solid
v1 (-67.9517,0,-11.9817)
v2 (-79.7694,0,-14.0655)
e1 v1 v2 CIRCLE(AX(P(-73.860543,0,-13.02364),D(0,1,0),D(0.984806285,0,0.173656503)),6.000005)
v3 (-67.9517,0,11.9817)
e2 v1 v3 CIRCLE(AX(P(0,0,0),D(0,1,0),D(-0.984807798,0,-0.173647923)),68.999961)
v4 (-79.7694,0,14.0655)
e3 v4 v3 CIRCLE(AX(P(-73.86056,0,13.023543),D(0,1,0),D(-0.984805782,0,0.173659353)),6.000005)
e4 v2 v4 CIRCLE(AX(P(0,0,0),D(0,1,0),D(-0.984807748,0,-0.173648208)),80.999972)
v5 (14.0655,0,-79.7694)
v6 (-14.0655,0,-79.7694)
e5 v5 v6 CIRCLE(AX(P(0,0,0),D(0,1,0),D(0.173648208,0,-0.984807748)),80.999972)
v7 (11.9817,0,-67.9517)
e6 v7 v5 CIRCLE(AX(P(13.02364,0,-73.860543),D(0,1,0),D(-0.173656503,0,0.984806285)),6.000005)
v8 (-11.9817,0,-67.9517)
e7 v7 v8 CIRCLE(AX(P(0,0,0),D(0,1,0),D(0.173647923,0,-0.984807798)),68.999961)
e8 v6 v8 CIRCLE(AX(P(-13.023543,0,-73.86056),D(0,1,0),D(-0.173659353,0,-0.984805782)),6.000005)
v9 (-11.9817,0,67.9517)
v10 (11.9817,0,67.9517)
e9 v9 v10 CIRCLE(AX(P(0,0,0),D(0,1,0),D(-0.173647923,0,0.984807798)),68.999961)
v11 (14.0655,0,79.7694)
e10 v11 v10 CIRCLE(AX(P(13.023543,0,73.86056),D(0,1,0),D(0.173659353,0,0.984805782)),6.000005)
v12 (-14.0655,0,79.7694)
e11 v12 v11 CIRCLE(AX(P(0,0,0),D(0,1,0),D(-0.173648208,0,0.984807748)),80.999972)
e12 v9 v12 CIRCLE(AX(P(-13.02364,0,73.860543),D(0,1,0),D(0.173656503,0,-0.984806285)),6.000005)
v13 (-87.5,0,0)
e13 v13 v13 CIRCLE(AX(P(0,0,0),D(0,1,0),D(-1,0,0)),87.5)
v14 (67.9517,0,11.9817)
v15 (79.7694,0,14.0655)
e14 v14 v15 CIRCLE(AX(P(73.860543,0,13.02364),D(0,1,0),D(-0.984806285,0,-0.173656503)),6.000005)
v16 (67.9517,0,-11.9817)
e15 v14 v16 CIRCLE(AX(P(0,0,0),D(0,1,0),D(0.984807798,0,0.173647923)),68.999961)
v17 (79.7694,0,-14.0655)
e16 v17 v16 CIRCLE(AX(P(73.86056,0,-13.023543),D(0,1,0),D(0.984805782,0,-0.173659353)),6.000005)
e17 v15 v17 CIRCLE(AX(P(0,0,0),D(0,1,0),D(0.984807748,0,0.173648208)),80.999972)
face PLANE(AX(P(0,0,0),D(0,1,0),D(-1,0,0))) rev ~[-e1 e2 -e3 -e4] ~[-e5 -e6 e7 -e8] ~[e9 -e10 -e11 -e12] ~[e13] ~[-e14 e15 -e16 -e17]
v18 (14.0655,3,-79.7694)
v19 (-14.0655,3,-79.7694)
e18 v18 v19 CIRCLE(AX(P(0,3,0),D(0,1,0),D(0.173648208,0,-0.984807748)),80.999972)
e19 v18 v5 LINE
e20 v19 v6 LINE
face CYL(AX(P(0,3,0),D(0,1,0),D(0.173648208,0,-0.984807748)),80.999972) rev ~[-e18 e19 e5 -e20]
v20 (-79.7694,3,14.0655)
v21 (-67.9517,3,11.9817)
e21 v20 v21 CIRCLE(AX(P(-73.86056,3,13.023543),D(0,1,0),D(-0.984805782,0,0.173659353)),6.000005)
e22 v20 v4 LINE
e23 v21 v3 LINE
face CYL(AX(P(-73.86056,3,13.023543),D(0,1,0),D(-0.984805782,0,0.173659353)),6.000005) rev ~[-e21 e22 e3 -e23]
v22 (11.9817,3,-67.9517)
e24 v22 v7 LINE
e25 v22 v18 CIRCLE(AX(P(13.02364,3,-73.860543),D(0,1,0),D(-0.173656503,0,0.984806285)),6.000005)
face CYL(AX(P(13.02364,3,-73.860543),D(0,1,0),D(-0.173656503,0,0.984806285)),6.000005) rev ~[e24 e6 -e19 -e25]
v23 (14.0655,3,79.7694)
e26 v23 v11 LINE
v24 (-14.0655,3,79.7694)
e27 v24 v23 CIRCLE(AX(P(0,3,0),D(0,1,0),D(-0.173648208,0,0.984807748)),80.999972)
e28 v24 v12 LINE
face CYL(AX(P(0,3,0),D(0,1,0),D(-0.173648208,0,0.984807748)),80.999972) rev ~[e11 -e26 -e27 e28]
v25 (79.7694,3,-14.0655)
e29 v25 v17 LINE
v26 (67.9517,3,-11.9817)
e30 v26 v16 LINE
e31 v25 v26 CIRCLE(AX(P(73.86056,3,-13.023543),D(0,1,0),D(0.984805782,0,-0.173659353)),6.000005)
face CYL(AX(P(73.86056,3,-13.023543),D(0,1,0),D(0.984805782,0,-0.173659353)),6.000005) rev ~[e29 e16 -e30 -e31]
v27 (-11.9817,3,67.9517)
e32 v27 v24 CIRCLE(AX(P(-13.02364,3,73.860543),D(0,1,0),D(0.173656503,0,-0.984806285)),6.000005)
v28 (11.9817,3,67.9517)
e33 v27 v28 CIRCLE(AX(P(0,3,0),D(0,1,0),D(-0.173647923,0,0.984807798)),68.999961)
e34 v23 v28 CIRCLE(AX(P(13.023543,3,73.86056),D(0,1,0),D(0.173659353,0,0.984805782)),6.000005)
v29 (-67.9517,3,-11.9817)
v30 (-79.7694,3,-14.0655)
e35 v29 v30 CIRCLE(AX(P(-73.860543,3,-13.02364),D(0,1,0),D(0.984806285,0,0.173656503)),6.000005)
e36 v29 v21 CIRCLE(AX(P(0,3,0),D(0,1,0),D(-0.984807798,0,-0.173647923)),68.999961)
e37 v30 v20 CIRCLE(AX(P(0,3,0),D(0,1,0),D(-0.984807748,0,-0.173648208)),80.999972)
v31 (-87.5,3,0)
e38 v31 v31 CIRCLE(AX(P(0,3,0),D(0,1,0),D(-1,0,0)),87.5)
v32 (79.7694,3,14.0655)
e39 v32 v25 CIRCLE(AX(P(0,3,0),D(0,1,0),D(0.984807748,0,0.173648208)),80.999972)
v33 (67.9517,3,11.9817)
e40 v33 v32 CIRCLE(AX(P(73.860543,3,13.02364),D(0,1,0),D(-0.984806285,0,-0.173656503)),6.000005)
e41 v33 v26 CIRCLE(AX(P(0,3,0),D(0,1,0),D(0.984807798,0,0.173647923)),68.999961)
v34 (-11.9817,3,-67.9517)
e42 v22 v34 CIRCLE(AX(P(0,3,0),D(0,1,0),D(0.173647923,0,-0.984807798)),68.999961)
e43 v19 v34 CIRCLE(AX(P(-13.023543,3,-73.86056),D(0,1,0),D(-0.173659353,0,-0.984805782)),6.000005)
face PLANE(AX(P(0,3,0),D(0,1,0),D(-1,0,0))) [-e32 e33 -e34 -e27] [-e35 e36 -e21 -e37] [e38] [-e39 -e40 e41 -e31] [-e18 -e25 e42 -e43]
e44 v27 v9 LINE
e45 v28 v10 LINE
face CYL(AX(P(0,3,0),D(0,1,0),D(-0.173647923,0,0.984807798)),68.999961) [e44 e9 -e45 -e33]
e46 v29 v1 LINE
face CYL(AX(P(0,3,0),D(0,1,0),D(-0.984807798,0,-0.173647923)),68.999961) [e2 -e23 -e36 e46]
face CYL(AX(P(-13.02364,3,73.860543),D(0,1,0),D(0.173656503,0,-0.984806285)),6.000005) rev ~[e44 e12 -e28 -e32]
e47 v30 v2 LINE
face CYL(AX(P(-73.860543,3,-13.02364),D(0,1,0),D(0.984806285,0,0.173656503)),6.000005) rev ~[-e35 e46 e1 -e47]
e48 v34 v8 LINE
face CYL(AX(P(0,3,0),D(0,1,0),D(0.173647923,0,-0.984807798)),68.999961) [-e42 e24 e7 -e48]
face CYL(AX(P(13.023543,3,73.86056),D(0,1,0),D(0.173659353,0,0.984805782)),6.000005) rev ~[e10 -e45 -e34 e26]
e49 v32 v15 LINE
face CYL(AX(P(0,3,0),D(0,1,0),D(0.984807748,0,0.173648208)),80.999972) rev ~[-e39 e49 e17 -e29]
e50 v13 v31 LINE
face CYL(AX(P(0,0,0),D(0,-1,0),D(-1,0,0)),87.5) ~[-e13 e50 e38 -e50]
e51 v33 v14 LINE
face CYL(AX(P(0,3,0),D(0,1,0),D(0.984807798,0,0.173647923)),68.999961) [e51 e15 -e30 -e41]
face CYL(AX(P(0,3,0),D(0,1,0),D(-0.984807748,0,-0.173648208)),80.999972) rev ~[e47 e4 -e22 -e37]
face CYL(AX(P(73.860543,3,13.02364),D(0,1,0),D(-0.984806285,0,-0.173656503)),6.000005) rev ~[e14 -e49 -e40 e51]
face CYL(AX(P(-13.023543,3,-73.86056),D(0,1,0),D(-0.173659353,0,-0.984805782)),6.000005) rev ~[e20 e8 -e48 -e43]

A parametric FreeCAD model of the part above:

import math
import FreeCAD as App
import Part
import Sketcher

V = App.Vector

doc = App.newDocument("Part")
params = doc.addObject("Spreadsheet::Sheet", "Params")
for row, (alias, value) in enumerate([
    ("sketch1_diameter", "175 mm"),
    ("pad1_length", "3 mm"),
    ("sketch2_radius", "6 mm"),
    ("sketch2_radius2", "81 mm"),
], start=1):
    params.set(f"A{row}", alias)
    params.set(f"B{row}", "=" + value)
    params.setAlias(f"B{row}", alias)

body = doc.addObject("PartDesign::Body", "Body")

# Sketch on XZ plane
sketch1 = body.newObject("Sketcher::SketchObject", "Sketch")
sketch1.AttachmentSupport = (doc.getObject("XZ_Plane"), [""])
sketch1.MapMode = "FlatFace"
sketch1.addGeometry(Part.Circle(V(0, 0, 0), V(0, 0, 1), 88), False)
sketch1.addConstraint([
    Sketcher.Constraint("Coincident", 0, 3, -1, 1),
    Sketcher.Constraint("Diameter", 0, 175.0),
])
sketch1.setExpression("Constraints[1]", "Params.sketch1_diameter")
pad1 = body.newObject("PartDesign::Pad", "Pad")
pad1.Profile = sketch1
pad1.setExpression("Length", "Params.pad1_length")
pad1.Reversed = True

# Sketch on XZ plane
sketch2 = body.newObject("Sketcher::SketchObject", "Sketch001")
sketch2.AttachmentSupport = (doc.getObject("XZ_Plane"), [""])
sketch2.MapMode = "FlatFace"
sketch2.AttachmentOffset = App.Placement(V(0, 0, -3), App.Rotation())
sketch2.addGeometry([
    Part.ArcOfCircle(Part.Circle(V(73.8606, 13.0236, 0), V(0, 0, 1), 6.000055), math.radians(10.00018), math.radians(190.000014)),
    Part.ArcOfCircle(Part.Circle(V(0, 0, 0), V(0, 0, 1), 80.999972), math.radians(-10.000002), math.radians(10.000002)),
    Part.ArcOfCircle(Part.Circle(V(73.8606, -13.0236, 0), V(0, 0, 1), 5.999956), math.radians(169.999986), math.radians(349.99982)),
    Part.ArcOfCircle(Part.Circle(V(0, 0, 0), V(0, 0, 1), 68.999961), math.radians(-9.999985), math.radians(9.999985)),
], False)
sketch2.addConstraint([
    Sketcher.Constraint("Coincident", 0, 1, 1, 2),
    Sketcher.Constraint("Coincident", 1, 1, 2, 2),
    Sketcher.Constraint("Coincident", 2, 1, 3, 1),
    Sketcher.Constraint("Coincident", 3, 2, 0, 2),
    Sketcher.Constraint("Coincident", 1, 3, -1, 1),
    Sketcher.Constraint("Coincident", 3, 3, -1, 1),
    Sketcher.Constraint("Radius", 0, 6.0),
    Sketcher.Constraint("Radius", 1, 81.0),
    Sketcher.Constraint("DistanceX", 0, 3, 0, 1, 5.909),
    Sketcher.Constraint("DistanceX", 2, 3, 0, 1, 5.909),
    Sketcher.Constraint("DistanceY", 2, 3, 0, 1, 27.089),
    Sketcher.Constraint("DistanceY", 1, 1, 2, 3, 1.042),
    Sketcher.Constraint("DistanceY", 2, 3, 2, 1, 1.042),
    Sketcher.Constraint("DistanceX", 3, 2, 0, 3, 5.909),
])
sketch2.setExpression("Constraints[6]", "Params.sketch2_radius")
sketch2.setExpression("Constraints[7]", "Params.sketch2_radius2")
pocket1 = body.newObject("PartDesign::Pocket", "Pocket")
pocket1.Profile = sketch2
pocket1.Type = "ThroughAll"
pocket1.Reversed = True
doc.recompute()

polarpattern = body.newObject("PartDesign::PolarPattern", "PolarPattern")
polarpattern.Originals = [pocket1]
polarpattern.Axis = (doc.getObject("Y_Axis"), [""])
polarpattern.Angle = 360
polarpattern.Occurrences = 4
body.Tip = polarpattern

doc.recompute()
